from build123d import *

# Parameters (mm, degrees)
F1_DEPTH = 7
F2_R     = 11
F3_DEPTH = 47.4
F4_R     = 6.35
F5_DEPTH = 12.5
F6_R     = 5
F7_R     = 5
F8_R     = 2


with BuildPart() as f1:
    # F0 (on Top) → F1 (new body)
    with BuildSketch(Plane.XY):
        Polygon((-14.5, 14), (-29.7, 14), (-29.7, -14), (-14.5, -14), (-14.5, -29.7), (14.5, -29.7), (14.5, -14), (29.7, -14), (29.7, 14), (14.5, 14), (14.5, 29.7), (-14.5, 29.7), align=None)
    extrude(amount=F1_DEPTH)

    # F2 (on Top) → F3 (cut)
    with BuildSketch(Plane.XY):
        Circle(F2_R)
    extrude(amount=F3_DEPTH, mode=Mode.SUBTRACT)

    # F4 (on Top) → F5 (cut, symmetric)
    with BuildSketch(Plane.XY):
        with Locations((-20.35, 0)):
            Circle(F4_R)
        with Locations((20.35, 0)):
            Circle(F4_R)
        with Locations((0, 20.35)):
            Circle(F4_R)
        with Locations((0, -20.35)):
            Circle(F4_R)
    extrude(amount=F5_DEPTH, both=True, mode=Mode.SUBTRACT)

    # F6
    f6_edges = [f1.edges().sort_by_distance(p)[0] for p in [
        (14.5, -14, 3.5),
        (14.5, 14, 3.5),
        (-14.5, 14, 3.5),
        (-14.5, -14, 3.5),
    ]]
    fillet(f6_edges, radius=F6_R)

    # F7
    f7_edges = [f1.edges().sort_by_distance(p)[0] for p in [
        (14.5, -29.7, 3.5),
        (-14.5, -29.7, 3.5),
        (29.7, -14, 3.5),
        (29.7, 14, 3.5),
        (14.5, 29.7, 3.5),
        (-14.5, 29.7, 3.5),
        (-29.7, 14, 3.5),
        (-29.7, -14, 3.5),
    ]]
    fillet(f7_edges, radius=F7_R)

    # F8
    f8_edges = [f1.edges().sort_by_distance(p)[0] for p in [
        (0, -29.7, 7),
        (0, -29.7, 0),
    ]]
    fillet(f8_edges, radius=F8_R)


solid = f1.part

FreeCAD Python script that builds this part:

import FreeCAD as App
import Part
import Sketcher


def edges_at(feature, points):
    """Names of the edges that pass closest to the given points."""
    edges = feature.Shape.Edges
    near = lambda p: min(range(len(edges)), key=lambda i: edges[i].distToShape(Part.Vertex(*p))[0])
    return sorted({f"Edge{near(p) + 1}" for p in points})

doc = App.newDocument("Part")
params = doc.addObject("Spreadsheet::Sheet", "Params")
for row, (alias, value) in enumerate([
    ("sketch1_width", "29 mm"),
    ("sketch1_height", "28 mm"),
    ("sketch1_width2", "15.2 mm"),
    ("sketch1_height2", "15.7 mm"),
    ("pad1_length", "7 mm"),
    ("sketch2_diameter", "22 mm"),
    ("pocket1_length", "47.4 mm"),
    ("sketch3_diameter", "12.7 mm"),
    ("pocket2_length", "25 mm"),
    ("fillet_radius", "5 mm"),
    ("fillet2_radius", "5 mm"),
    ("fillet3_radius", "2 mm"),
], start=1):
    params.set(f"A{row}", alias)
    params.set(f"B{row}", "=" + value)
    params.setAlias(f"B{row}", alias)

body = doc.addObject("PartDesign::Body", "Body")

# Sketch on XY plane
sketch1 = doc.addObject("Sketcher::SketchObject", "Sketch")
body.addObject(sketch1)
sketch1.AttachmentSupport = (doc.XY_Plane, [""])
sketch1.MapMode = "FlatFace"
sketch1.addGeometry(Part.LineSegment(App.Vector(-14.5, 14, 0), App.Vector(-29.7, 14, 0)), False)
sketch1.addGeometry(Part.LineSegment(App.Vector(-29.7, 14, 0), App.Vector(-29.7, -14, 0)), False)
sketch1.addGeometry(Part.LineSegment(App.Vector(-29.7, -14, 0), App.Vector(-14.5, -14, 0)), False)
sketch1.addGeometry(Part.LineSegment(App.Vector(-14.5, -14, 0), App.Vector(-14.5, -29.7, 0)), False)
sketch1.addGeometry(Part.LineSegment(App.Vector(-14.5, -29.7, 0), App.Vector(14.5, -29.7, 0)), False)
sketch1.addGeometry(Part.LineSegment(App.Vector(14.5, -29.7, 0), App.Vector(14.5, -14, 0)), False)
sketch1.addGeometry(Part.LineSegment(App.Vector(14.5, -14, 0), App.Vector(29.7, -14, 0)), False)
sketch1.addGeometry(Part.LineSegment(App.Vector(29.7, -14, 0), App.Vector(29.7, 14, 0)), False)
sketch1.addGeometry(Part.LineSegment(App.Vector(29.7, 14, 0), App.Vector(14.5, 14, 0)), False)
sketch1.addGeometry(Part.LineSegment(App.Vector(14.5, 14, 0), App.Vector(14.5, 29.7, 0)), False)
sketch1.addGeometry(Part.LineSegment(App.Vector(14.5, 29.7, 0), App.Vector(-14.5, 29.7, 0)), False)
sketch1.addGeometry(Part.LineSegment(App.Vector(-14.5, 29.7, 0), App.Vector(-14.5, 14, 0)), False)
sketch1.addConstraint(Sketcher.Constraint("Coincident", 0, 2, 1, 1))
sketch1.addConstraint(Sketcher.Constraint("Coincident", 1, 2, 2, 1))
sketch1.addConstraint(Sketcher.Constraint("Coincident", 2, 2, 3, 1))
sketch1.addConstraint(Sketcher.Constraint("Coincident", 3, 2, 4, 1))
sketch1.addConstraint(Sketcher.Constraint("Coincident", 4, 2, 5, 1))
sketch1.addConstraint(Sketcher.Constraint("Coincident", 5, 2, 6, 1))
sketch1.addConstraint(Sketcher.Constraint("Coincident", 6, 2, 7, 1))
sketch1.addConstraint(Sketcher.Constraint("Coincident", 7, 2, 8, 1))
sketch1.addConstraint(Sketcher.Constraint("Coincident", 8, 2, 9, 1))
sketch1.addConstraint(Sketcher.Constraint("Coincident", 9, 2, 10, 1))
sketch1.addConstraint(Sketcher.Constraint("Coincident", 10, 2, 11, 1))
sketch1.addConstraint(Sketcher.Constraint("Coincident", 11, 2, 0, 1))
sketch1.addConstraint(Sketcher.Constraint("Horizontal", 0))
sketch1.addConstraint(Sketcher.Constraint("Vertical", 1))
sketch1.addConstraint(Sketcher.Constraint("Horizontal", 2))
sketch1.addConstraint(Sketcher.Constraint("Vertical", 3))
sketch1.addConstraint(Sketcher.Constraint("Horizontal", 4))
sketch1.addConstraint(Sketcher.Constraint("Vertical", 5))
sketch1.addConstraint(Sketcher.Constraint("Horizontal", 6))
sketch1.addConstraint(Sketcher.Constraint("Vertical", 7))
sketch1.addConstraint(Sketcher.Constraint("Horizontal", 8))
sketch1.addConstraint(Sketcher.Constraint("Vertical", 9))
sketch1.addConstraint(Sketcher.Constraint("Horizontal", 10))
sketch1.addConstraint(Sketcher.Constraint("Vertical", 11))
sketch1.addConstraint(Sketcher.Constraint("Symmetric", 0, 2, 6, 2, -1, 1))
sketch1.addConstraint(Sketcher.Constraint("Symmetric", 2, 2, 8, 2, -1, 1))
sketch1.addConstraint(Sketcher.Constraint("Symmetric", 4, 2, 10, 2, -1, 1))
sketch1.addConstraint(Sketcher.Constraint("Symmetric", 2, 2, 5, 2, -2))
sketch1.addConstraint(Sketcher.Constraint("DistanceX", 4, 1, 4, 2, 29.0))
sketch1.addConstraint(Sketcher.Constraint("DistanceY", 1, 2, 1, 1, 28.0))
sketch1.addConstraint(Sketcher.Constraint("DistanceX", 0, 2, 0, 1, 15.2))
sketch1.addConstraint(Sketcher.Constraint("DistanceY", 3, 2, 3, 1, 15.7))
sketch1.setExpression("Constraints[28]", "Params.sketch1_width")
sketch1.setExpression("Constraints[29]", "Params.sketch1_height")
sketch1.setExpression("Constraints[30]", "Params.sketch1_width2")
sketch1.setExpression("Constraints[31]", "Params.sketch1_height2")
pad1 = doc.addObject("PartDesign::Pad", "Pad")
body.addObject(pad1)
pad1.Profile = sketch1
pad1.setExpression("Length", "Params.pad1_length")

# Sketch on XY plane
sketch2 = doc.addObject("Sketcher::SketchObject", "Sketch001")
body.addObject(sketch2)
sketch2.AttachmentSupport = (doc.XY_Plane, [""])
sketch2.MapMode = "FlatFace"
sketch2.addGeometry(Part.Circle(App.Vector(0, 0, 0), App.Vector(0, 0, 1), 11), False)
sketch2.addConstraint(Sketcher.Constraint("Coincident", 0, 3, -1, 1))
sketch2.addConstraint(Sketcher.Constraint("Diameter", 0, 22.0))
sketch2.setExpression("Constraints[1]", "Params.sketch2_diameter")
pocket1 = doc.addObject("PartDesign::Pocket", "Pocket")
body.addObject(pocket1)
pocket1.Profile = sketch2
pocket1.setExpression("Length", "Params.pocket1_length")
pocket1.Reversed = True

# Sketch on XY plane
sketch3 = doc.addObject("Sketcher::SketchObject", "Sketch002")
body.addObject(sketch3)
sketch3.AttachmentSupport = (doc.XY_Plane, [""])
sketch3.MapMode = "FlatFace"
sketch3.addGeometry(Part.Circle(App.Vector(-20.35, 0, 0), App.Vector(0, 0, 1), 6.35), False)
sketch3.addGeometry(Part.Circle(App.Vector(20.35, 0, 0), App.Vector(0, 0, 1), 6.35), False)
sketch3.addGeometry(Part.Circle(App.Vector(0, 20.35, 0), App.Vector(0, 0, 1), 6.35), False)
sketch3.addGeometry(Part.Circle(App.Vector(0, -20.35, 0), App.Vector(0, 0, 1), 6.35), False)
sketch3.addConstraint(Sketcher.Constraint("Equal", 0, 1))
sketch3.addConstraint(Sketcher.Constraint("Equal", 1, 2))
sketch3.addConstraint(Sketcher.Constraint("Equal", 2, 3))
sketch3.addConstraint(Sketcher.Constraint("Symmetric", 0, 3, 1, 3, -1, 1))
sketch3.addConstraint(Sketcher.Constraint("Symmetric", 2, 3, 3, 3, -1, 1))
sketch3.addConstraint(Sketcher.Constraint("PointOnObject", 0, 3, -1))
sketch3.addConstraint(Sketcher.Constraint("PointOnObject", 2, 3, -2))
sketch3.addConstraint(Sketcher.Constraint("Diameter", 0, 12.7))
sketch3.addConstraint(Sketcher.Constraint("DistanceX", 0, 3, 1, 3, 40.7))
sketch3.addConstraint(Sketcher.Constraint("DistanceY", 3, 3, 2, 3, 40.7))
sketch3.setExpression("Constraints[7]", "Params.sketch3_diameter")
pocket2 = doc.addObject("PartDesign::Pocket", "Pocket001")
body.addObject(pocket2)
pocket2.Profile = sketch3
pocket2.setExpression("Length", "Params.pocket2_length")
pocket2.Midplane = True
doc.recompute()

fillet = doc.addObject("PartDesign::Fillet", "Fillet")
body.addObject(fillet)
fillet.Base = (pocket2, edges_at(pocket2, [
    (14.5, -14, 3.5),
    (14.5, 14, 3.5),
    (-14.5, 14, 3.5),
    (-14.5, -14, 3.5),
]))
fillet.setExpression("Radius", "Params.fillet_radius")
doc.recompute()

fillet2 = doc.addObject("PartDesign::Fillet", "Fillet001")
body.addObject(fillet2)
fillet2.Base = (fillet, edges_at(fillet, [
    (14.5, -29.7, 3.5),
    (-14.5, -29.7, 3.5),
    (29.7, -14, 3.5),
    (29.7, 14, 3.5),
    (14.5, 29.7, 3.5),
    (-14.5, 29.7, 3.5),
    (-29.7, 14, 3.5),
    (-29.7, -14, 3.5),
]))
fillet2.setExpression("Radius", "Params.fillet2_radius")
doc.recompute()

fillet3 = doc.addObject("PartDesign::Fillet", "Fillet002")
body.addObject(fillet3)
fillet3.Base = (fillet2, edges_at(fillet2, [(0, -29.7, 7), (0, -29.7, 0)]))
fillet3.setExpression("Radius", "Params.fillet3_radius")

doc.recompute()
